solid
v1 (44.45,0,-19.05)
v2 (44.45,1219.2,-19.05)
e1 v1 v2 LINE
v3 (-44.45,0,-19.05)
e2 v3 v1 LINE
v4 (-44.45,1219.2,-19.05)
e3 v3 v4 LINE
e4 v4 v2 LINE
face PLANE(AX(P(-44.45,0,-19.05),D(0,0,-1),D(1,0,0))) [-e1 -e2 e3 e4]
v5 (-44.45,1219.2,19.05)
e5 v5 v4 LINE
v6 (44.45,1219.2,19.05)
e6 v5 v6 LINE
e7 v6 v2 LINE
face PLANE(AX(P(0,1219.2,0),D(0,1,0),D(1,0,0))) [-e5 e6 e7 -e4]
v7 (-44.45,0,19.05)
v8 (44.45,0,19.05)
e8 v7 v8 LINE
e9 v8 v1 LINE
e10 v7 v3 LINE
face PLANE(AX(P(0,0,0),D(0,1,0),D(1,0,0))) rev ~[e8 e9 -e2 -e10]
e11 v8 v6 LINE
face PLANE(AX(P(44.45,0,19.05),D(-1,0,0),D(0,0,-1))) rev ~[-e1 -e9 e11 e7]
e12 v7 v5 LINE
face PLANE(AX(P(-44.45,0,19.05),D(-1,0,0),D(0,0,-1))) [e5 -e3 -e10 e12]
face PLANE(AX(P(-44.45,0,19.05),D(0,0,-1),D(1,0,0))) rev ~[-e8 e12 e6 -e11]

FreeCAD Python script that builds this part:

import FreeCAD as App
import Part
import Sketcher
from FreeCAD import Vector
Q = App.Units.Quantity


def add_polygon(sketch, points):
    """Adds a closed chain of lines whose ends are joined by coincident constraints."""
    first, n = sketch.GeometryCount, len(points)
    for a, b in zip(points, points[1:] + points[:1]):
        sketch.addGeometry(Part.LineSegment(App.Vector(*a, 0), App.Vector(*b, 0)), False)
    for i in range(n):
        sketch.addConstraint(Sketcher.Constraint("Coincident", first + i, 2, first + (i + 1) % n, 1))

doc = App.newDocument("Part")
body = doc.addObject("PartDesign::Body", "Body")

# Sketch on XZ plane
sketch1 = doc.addObject("Sketcher::SketchObject", "Sketch")
body.addObject(sketch1)
sketch1.AttachmentSupport = (doc.XZ_Plane, [""])
sketch1.MapMode = "FlatFace"
add_polygon(sketch1, [(-44, -19), (-44, 19), (44, 19), (44, -19)])  # lines 0-3
sketch1.addConstraint([
    Sketcher.Constraint("Vertical", 0),
    Sketcher.Constraint("Horizontal", 1),
    Sketcher.Constraint("Vertical", 2),
    Sketcher.Constraint("Horizontal", 3),
    Sketcher.Constraint("Symmetric", 0, 2, 2, 2, -1, 1),
    Sketcher.Constraint("DistanceX", 1, 1, 1, 2, Q("3.5 in")),
    Sketcher.Constraint("DistanceY", 0, 1, 0, 2, Q("1.5 in")),
])
pad1 = doc.addObject("PartDesign::Pad", "Pad")
body.addObject(pad1)
pad1.Profile = sketch1
pad1.Length = Q("48 in")
pad1.Reversed = True

doc.recompute()
